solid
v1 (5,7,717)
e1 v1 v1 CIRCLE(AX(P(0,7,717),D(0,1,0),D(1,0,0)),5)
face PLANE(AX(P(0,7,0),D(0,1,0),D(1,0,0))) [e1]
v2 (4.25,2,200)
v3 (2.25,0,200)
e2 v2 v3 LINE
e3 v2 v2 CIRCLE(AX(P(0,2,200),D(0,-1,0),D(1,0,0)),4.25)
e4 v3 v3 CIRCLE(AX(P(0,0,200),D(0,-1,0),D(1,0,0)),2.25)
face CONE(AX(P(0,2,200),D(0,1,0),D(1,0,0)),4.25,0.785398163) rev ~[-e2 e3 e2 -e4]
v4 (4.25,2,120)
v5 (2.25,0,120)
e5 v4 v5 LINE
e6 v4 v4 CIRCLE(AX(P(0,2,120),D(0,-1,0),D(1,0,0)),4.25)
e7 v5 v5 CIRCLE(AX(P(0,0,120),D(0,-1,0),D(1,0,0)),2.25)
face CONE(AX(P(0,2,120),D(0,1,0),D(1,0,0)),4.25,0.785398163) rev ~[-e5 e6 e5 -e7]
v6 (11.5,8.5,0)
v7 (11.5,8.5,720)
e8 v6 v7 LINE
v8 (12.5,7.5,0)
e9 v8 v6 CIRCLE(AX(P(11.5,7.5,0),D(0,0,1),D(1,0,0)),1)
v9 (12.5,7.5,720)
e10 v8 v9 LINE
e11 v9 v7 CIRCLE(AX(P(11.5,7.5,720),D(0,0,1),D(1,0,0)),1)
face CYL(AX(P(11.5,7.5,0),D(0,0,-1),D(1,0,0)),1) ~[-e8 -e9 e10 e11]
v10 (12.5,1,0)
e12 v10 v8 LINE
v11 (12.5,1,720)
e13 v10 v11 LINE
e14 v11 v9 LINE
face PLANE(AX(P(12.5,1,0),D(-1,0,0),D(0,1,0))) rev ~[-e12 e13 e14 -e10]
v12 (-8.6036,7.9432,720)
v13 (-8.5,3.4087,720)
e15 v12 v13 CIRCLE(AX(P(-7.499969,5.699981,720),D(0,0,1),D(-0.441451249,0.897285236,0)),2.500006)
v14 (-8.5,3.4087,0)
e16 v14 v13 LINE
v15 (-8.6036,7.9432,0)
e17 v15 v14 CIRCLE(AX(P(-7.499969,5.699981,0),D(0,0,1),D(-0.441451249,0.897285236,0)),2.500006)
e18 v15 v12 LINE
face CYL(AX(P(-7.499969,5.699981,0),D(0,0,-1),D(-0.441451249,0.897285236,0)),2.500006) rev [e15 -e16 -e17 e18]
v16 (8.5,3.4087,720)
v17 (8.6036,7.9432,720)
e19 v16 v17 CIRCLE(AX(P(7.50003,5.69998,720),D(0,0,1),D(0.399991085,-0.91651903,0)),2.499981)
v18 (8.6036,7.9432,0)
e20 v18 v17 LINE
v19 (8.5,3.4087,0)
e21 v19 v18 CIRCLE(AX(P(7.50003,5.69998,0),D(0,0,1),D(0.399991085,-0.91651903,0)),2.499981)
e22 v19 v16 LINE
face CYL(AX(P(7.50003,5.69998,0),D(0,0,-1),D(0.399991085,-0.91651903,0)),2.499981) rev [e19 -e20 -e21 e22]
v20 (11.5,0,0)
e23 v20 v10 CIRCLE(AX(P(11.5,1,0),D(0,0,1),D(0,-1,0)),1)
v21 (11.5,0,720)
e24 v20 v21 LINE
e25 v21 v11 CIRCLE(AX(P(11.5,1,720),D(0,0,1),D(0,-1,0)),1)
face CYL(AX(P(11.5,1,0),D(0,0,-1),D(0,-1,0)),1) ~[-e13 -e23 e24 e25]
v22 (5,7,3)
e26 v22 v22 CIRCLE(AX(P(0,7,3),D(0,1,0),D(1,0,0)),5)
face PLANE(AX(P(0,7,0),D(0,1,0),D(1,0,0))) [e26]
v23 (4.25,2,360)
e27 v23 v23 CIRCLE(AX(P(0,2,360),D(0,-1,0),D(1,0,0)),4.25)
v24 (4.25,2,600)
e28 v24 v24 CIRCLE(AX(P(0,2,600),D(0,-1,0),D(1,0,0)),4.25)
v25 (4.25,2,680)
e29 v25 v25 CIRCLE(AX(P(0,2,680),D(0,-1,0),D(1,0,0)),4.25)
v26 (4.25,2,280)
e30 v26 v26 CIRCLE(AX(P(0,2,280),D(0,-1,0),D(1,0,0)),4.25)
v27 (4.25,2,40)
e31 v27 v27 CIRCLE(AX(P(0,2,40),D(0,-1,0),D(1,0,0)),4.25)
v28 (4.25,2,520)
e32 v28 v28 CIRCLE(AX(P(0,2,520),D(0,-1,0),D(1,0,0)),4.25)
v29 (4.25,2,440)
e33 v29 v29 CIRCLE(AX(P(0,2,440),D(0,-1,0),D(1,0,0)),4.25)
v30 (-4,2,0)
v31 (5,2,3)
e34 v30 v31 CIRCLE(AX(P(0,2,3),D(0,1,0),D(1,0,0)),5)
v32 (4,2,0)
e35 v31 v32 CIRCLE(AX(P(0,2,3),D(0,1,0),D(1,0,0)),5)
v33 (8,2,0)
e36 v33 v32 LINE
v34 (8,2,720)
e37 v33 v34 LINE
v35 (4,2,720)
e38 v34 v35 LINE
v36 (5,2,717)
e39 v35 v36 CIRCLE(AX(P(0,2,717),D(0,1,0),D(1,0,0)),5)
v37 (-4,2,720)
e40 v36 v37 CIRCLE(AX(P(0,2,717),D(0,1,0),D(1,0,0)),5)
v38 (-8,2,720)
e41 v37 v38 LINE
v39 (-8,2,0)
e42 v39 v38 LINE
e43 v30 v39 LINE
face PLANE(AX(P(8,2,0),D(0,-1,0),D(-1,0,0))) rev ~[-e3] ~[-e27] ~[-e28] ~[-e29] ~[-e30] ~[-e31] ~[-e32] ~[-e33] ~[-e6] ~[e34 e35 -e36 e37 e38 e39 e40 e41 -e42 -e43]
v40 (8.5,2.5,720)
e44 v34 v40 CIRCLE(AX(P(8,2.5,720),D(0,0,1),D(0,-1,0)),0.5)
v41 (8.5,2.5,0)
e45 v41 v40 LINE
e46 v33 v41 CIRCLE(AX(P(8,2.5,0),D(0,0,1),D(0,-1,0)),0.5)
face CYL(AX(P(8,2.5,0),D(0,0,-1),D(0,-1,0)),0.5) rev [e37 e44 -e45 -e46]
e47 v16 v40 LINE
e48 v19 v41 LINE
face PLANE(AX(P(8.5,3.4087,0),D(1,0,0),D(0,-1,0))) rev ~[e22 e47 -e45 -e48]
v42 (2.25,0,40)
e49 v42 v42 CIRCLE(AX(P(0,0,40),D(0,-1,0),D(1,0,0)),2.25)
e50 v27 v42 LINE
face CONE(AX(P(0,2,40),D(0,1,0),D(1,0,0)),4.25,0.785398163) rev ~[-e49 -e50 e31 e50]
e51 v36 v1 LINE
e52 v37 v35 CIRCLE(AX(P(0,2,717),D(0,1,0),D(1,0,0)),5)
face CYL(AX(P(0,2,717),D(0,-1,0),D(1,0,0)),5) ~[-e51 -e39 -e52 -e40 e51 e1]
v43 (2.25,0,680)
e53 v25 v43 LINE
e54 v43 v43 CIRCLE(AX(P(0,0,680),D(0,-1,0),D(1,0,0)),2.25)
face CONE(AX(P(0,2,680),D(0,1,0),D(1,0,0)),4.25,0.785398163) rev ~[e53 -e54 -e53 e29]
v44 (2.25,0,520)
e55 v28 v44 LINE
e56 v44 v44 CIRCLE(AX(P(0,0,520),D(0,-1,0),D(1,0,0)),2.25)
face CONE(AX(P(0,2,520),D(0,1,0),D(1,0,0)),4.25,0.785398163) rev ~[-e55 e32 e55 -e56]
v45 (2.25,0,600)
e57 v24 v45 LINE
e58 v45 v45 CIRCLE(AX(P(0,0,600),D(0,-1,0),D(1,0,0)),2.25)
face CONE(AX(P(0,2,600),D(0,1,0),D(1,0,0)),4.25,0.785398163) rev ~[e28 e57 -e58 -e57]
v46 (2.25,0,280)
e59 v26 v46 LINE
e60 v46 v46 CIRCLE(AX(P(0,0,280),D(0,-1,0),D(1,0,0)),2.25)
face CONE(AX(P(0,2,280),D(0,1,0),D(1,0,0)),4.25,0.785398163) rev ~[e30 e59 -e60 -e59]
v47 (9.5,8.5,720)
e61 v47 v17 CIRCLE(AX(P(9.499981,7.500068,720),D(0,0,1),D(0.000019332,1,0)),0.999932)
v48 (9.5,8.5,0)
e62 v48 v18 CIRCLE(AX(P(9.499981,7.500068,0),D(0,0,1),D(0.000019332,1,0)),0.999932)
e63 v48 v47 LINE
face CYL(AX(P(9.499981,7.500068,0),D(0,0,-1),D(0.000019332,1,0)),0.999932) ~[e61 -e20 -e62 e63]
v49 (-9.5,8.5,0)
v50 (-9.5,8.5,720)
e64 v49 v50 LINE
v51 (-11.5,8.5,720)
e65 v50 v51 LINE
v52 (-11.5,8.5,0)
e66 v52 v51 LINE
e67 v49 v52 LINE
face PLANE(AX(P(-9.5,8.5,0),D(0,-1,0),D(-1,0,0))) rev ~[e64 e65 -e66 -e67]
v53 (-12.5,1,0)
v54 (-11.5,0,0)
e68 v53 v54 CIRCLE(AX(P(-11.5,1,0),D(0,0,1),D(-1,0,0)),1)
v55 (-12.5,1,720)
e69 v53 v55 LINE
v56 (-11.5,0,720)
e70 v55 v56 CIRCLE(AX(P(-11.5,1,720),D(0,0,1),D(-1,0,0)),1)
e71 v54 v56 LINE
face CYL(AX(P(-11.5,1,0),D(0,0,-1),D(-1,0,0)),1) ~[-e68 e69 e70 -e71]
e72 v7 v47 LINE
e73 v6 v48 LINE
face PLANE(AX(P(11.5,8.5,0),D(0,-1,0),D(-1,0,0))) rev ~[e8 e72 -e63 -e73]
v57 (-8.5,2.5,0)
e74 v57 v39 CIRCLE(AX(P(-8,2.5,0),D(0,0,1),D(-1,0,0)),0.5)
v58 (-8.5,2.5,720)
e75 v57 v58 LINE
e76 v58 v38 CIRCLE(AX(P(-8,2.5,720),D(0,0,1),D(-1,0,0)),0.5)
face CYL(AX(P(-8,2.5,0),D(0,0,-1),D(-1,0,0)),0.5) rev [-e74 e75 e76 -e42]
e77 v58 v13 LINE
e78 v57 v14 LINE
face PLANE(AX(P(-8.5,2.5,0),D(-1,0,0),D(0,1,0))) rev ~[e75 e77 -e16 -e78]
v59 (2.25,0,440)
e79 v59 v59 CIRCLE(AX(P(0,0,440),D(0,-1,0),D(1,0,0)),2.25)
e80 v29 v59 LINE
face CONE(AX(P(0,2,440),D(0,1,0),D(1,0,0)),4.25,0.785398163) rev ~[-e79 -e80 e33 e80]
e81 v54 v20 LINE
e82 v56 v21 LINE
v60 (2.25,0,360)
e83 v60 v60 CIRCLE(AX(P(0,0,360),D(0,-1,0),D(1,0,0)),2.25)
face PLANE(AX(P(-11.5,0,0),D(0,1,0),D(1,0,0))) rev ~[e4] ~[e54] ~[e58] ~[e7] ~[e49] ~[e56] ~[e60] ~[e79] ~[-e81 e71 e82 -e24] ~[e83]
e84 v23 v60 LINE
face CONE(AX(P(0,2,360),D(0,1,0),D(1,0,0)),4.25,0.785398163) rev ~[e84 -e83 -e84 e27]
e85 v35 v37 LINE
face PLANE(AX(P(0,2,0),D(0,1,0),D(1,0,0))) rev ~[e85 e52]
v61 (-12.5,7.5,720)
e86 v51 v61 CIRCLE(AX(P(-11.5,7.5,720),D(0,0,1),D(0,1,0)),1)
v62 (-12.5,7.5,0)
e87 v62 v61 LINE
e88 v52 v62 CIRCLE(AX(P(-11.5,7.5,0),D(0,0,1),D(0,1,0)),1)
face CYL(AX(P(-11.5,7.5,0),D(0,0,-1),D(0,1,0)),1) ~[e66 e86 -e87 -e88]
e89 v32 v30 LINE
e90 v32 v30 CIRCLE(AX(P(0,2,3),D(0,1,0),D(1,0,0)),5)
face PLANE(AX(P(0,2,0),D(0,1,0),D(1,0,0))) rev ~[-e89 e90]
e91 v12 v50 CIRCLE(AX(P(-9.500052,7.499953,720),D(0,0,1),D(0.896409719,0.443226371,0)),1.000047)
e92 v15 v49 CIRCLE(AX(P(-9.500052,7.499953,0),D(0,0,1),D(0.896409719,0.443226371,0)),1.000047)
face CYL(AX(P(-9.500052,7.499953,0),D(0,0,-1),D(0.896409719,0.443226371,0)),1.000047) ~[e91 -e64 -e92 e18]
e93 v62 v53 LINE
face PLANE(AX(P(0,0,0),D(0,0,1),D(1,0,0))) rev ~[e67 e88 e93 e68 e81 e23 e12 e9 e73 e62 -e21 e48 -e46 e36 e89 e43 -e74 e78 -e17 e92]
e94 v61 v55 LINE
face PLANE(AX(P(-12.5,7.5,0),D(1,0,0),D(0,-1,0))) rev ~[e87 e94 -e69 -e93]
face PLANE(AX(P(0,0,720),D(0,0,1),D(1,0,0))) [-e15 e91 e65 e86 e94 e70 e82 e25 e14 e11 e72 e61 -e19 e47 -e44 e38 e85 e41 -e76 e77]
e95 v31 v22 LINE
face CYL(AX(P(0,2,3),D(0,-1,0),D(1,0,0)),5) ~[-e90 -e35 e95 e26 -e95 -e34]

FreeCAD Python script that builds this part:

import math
import FreeCAD as App
import Part
import Sketcher
from FreeCAD import Vector
Q = App.Units.Quantity


def add_polygon(sketch, points):
    """Adds a closed chain of lines whose ends are joined by coincident constraints."""
    first, n = sketch.GeometryCount, len(points)
    for a, b in zip(points, points[1:] + points[:1]):
        sketch.addGeometry(Part.LineSegment(App.Vector(*a, 0), App.Vector(*b, 0)), False)
    for i in range(n):
        sketch.addConstraint(Sketcher.Constraint("Coincident", first + i, 2, first + (i + 1) % n, 1))

doc = App.newDocument("Part")
body = doc.addObject("PartDesign::Body", "Body")

# Sketch on XY plane
sketch1 = body.newObject("Sketcher::SketchObject", "Sketch")
sketch1.AttachmentSupport = (doc.getObject("XY_Plane"), [""])
sketch1.MapMode = "FlatFace"
sketch1.addGeometry(Part.LineSegment(Vector(-12.5, 7.5, 0), Vector(-12.5, 1, 0)), False)
sketch1.addGeometry(Part.ArcOfCircle(Part.Circle(Vector(-11.5, 1, 0), Vector(0, 0, 1), 1), math.radians(180), math.radians(270)), False)
sketch1.addGeometry(Part.LineSegment(Vector(-11.5, 0, 0), Vector(11.5, 0, 0)), False)
sketch1.addGeometry(Part.ArcOfCircle(Part.Circle(Vector(11.5, 1, 0), Vector(0, 0, 1), 1), math.radians(-90), math.radians(0)), False)
sketch1.addGeometry(Part.LineSegment(Vector(12.5, 1, 0), Vector(12.5, 7.5, 0)), False)
sketch1.addGeometry(Part.ArcOfCircle(Part.Circle(Vector(11.5, 7.5, 0), Vector(0, 0, 1), 1), math.radians(0), math.radians(90)), False)
sketch1.addGeometry(Part.LineSegment(Vector(11.5, 8.5, 0), Vector(9.5, 8.5, 0)), False)
sketch1.addGeometry(Part.ArcOfCircle(Part.Circle(Vector(9.5, 7.5, 0), Vector(0, 0, 1), 1), math.radians(90), math.radians(154)), False)
sketch1.addGeometry(Part.ArcOfCircle(Part.Circle(Vector(7.5, 5.7, 0), Vector(0, 0, 1), 2.5), math.radians(-66), math.radians(64)), False)
sketch1.addGeometry(Part.LineSegment(Vector(8.5, 3.4, 0), Vector(8.5, 2.5, 0)), False)
sketch1.addGeometry(Part.ArcOfCircle(Part.Circle(Vector(8, 2.5, 0), Vector(0, 0, 1), 0.5), math.radians(-90), math.radians(0)), False)
sketch1.addGeometry(Part.LineSegment(Vector(8, 2, 0), Vector(-8, 2, 0)), False)
sketch1.addGeometry(Part.ArcOfCircle(Part.Circle(Vector(-8, 2.5, 0), Vector(0, 0, 1), 0.5), math.radians(180), math.radians(270)), False)
sketch1.addGeometry(Part.LineSegment(Vector(-8.5, 2.5, 0), Vector(-8.5, 3.4, 0)), False)
sketch1.addGeometry(Part.ArcOfCircle(Part.Circle(Vector(-7.5, 5.7, 0), Vector(0, 0, 1), 2.5), math.radians(116), math.radians(246)), False)
sketch1.addGeometry(Part.ArcOfCircle(Part.Circle(Vector(-9.5, 7.5, 0), Vector(0, 0, 1), 1), math.radians(26), math.radians(90)), False)
sketch1.addGeometry(Part.LineSegment(Vector(-9.5, 8.5, 0), Vector(-11.5, 8.5, 0)), False)
sketch1.addGeometry(Part.ArcOfCircle(Part.Circle(Vector(-11.5, 7.5, 0), Vector(0, 0, 1), 1), math.radians(90), math.radians(180)), False)
sketch1.addConstraint(Sketcher.Constraint("Tangent", 0, 2, 1, 1))
sketch1.addConstraint(Sketcher.Constraint("Tangent", 1, 2, 2, 1))
sketch1.addConstraint(Sketcher.Constraint("Tangent", 2, 2, 3, 1))
sketch1.addConstraint(Sketcher.Constraint("Tangent", 3, 2, 4, 1))
sketch1.addConstraint(Sketcher.Constraint("Tangent", 4, 2, 5, 1))
sketch1.addConstraint(Sketcher.Constraint("Tangent", 5, 2, 6, 1))
sketch1.addConstraint(Sketcher.Constraint("Tangent", 6, 2, 7, 1))
sketch1.addConstraint(Sketcher.Constraint("Coincident", 7, 2, 8, 2))
sketch1.addConstraint(Sketcher.Constraint("Coincident", 8, 1, 9, 1))
sketch1.addConstraint(Sketcher.Constraint("Tangent", 9, 2, 10, 2))
sketch1.addConstraint(Sketcher.Constraint("Tangent", 10, 1, 11, 1))
sketch1.addConstraint(Sketcher.Constraint("Tangent", 11, 2, 12, 2))
sketch1.addConstraint(Sketcher.Constraint("Tangent", 12, 1, 13, 1))
sketch1.addConstraint(Sketcher.Constraint("Coincident", 13, 2, 14, 2))
sketch1.addConstraint(Sketcher.Constraint("Coincident", 14, 1, 15, 1))
sketch1.addConstraint(Sketcher.Constraint("Tangent", 15, 2, 16, 1))
sketch1.addConstraint(Sketcher.Constraint("Tangent", 16, 2, 17, 1))
sketch1.addConstraint(Sketcher.Constraint("Tangent", 17, 2, 0, 1))
sketch1.addConstraint(Sketcher.Constraint("Vertical", 0))
sketch1.addConstraint(Sketcher.Constraint("Horizontal", 2))
sketch1.addConstraint(Sketcher.Constraint("Vertical", 4))
sketch1.addConstraint(Sketcher.Constraint("Horizontal", 6))
sketch1.addConstraint(Sketcher.Constraint("Vertical", 9))
sketch1.addConstraint(Sketcher.Constraint("Horizontal", 11))
sketch1.addConstraint(Sketcher.Constraint("Vertical", 13))
sketch1.addConstraint(Sketcher.Constraint("Horizontal", 16))
sketch1.addConstraint(Sketcher.Constraint("Equal", 1, 3))
sketch1.addConstraint(Sketcher.Constraint("Equal", 3, 5))
sketch1.addConstraint(Sketcher.Constraint("Equal", 5, 7))
sketch1.addConstraint(Sketcher.Constraint("Equal", 10, 12))
sketch1.addConstraint(Sketcher.Constraint("Equal", 8, 14))
sketch1.addConstraint(Sketcher.Constraint("Equal", 7, 15))
sketch1.addConstraint(Sketcher.Constraint("Equal", 15, 17))
sketch1.addConstraint(Sketcher.Constraint("Symmetric", 1, 2, 2, 2, -1, 1))
sketch1.addConstraint(Sketcher.Constraint("Symmetric", 8, 3, 14, 3, -2))
sketch1.addConstraint(Sketcher.Constraint("Symmetric", 7, 3, 15, 3, -2))
sketch1.addConstraint(Sketcher.Constraint("Horizontal", 8, 1, 13, 2))
sketch1.addConstraint(Sketcher.Constraint("Radius", 1, Q("1 mm")))
sketch1.addConstraint(Sketcher.Constraint("Radius", 8, Q("2.5 mm")))
sketch1.addConstraint(Sketcher.Constraint("Radius", 10, Q("0.5 mm")))
sketch1.addConstraint(Sketcher.Constraint("DistanceX", 2, 1, 2, 2, Q("23 mm")))
sketch1.addConstraint(Sketcher.Constraint("DistanceX", 6, 2, 6, 1, Q("2 mm")))
sketch1.addConstraint(Sketcher.Constraint("DistanceX", 11, 2, 11, 1, Q("16 mm")))
sketch1.addConstraint(Sketcher.Constraint("DistanceY", 0, 2, 0, 1, Q("6.5 mm")))
sketch1.addConstraint(Sketcher.Constraint("DistanceY", -1, 1, 10, 1, Q("2 mm")))
sketch1.addConstraint(Sketcher.Constraint("DistanceX", 8, 3, 7, 3, Q("2 mm")))
sketch1.addConstraint(Sketcher.Constraint("DistanceY", -1, 1, 8, 3, Q("5.7 mm")))
pad1 = body.newObject("PartDesign::Pad", "Pad")
pad1.Profile = sketch1
pad1.Length = 720

# Sketch on XY plane
sketch2 = body.newObject("Sketcher::SketchObject", "Sketch001")
sketch2.AttachmentSupport = (doc.getObject("XY_Plane"), [""])
sketch2.MapMode = "FlatFace"
sketch2.AttachmentOffset = App.Placement(Vector(0, 0, 40), App.Rotation())
add_polygon(sketch2, [(0, 2), (0, 0), (2.2, 0), (4.2, 2)])  # lines 0-3
sketch2.addConstraint(Sketcher.Constraint("Vertical", 0))
sketch2.addConstraint(Sketcher.Constraint("Horizontal", 1))
sketch2.addConstraint(Sketcher.Constraint("Horizontal", 3))
sketch2.addConstraint(Sketcher.Constraint("Coincident", 0, 2, -1, 1))
sketch2.addConstraint(Sketcher.Constraint("DistanceY", 0, 2, 0, 1, Q("2 mm")))
sketch2.addConstraint(Sketcher.Constraint("Angle", 2, Q("45 deg")))
sketch2.addConstraint(Sketcher.Constraint("DistanceX", 1, 1, 1, 2, Q("2.25 mm")))
groove = body.newObject("PartDesign::Groove", "Groove")
groove.Profile = sketch2
groove.ReferenceAxis = (sketch2, ["V_Axis"])
groove.Angle = 360
doc.recompute()

linearpattern = body.newObject("PartDesign::LinearPattern", "LinearPattern")
linearpattern.Originals = [groove]
linearpattern.Direction = (doc.getObject("Z_Axis"), [""])
linearpattern.Mode = "offset"
linearpattern.Offset = 80
linearpattern.Occurrences = 9
body.Tip = linearpattern

# Sketch on XZ plane
sketch3 = body.newObject("Sketcher::SketchObject", "Sketch002")
sketch3.AttachmentSupport = (doc.getObject("XZ_Plane"), [""])
sketch3.MapMode = "FlatFace"
sketch3.AttachmentOffset = App.Placement(Vector(0, 0, -2), App.Rotation())
sketch3.addGeometry(Part.Circle(Vector(0, 3, 0), Vector(0, 0, 1), 5), False)
sketch3.addConstraint(Sketcher.Constraint("PointOnObject", 0, 3, -2))
sketch3.addConstraint(Sketcher.Constraint("Diameter", 0, Q("10 mm")))
sketch3.addConstraint(Sketcher.Constraint("DistanceY", -1, 1, 0, 3, Q("3 mm")))
pad2 = body.newObject("PartDesign::Pad", "Pad001")
pad2.Profile = sketch3
pad2.Length = 5
pad2.Reversed = True

# Sketch on XZ plane
sketch4 = body.newObject("Sketcher::SketchObject", "Sketch003")
sketch4.AttachmentSupport = (doc.getObject("XZ_Plane"), [""])
sketch4.MapMode = "FlatFace"
sketch4.AttachmentOffset = App.Placement(Vector(0, 0, -2), App.Rotation())
sketch4.addGeometry(Part.Circle(Vector(0, 717, 0), Vector(0, 0, 1), 5), False)
sketch4.addConstraint(Sketcher.Constraint("PointOnObject", 0, 3, -2))
sketch4.addConstraint(Sketcher.Constraint("Diameter", 0, Q("10 mm")))
sketch4.addConstraint(Sketcher.Constraint("DistanceY", -1, 1, 0, 3, Q("717 mm")))
pad3 = body.newObject("PartDesign::Pad", "Pad002")
pad3.Profile = sketch4
pad3.Length = 5
pad3.Reversed = True

doc.recompute()
